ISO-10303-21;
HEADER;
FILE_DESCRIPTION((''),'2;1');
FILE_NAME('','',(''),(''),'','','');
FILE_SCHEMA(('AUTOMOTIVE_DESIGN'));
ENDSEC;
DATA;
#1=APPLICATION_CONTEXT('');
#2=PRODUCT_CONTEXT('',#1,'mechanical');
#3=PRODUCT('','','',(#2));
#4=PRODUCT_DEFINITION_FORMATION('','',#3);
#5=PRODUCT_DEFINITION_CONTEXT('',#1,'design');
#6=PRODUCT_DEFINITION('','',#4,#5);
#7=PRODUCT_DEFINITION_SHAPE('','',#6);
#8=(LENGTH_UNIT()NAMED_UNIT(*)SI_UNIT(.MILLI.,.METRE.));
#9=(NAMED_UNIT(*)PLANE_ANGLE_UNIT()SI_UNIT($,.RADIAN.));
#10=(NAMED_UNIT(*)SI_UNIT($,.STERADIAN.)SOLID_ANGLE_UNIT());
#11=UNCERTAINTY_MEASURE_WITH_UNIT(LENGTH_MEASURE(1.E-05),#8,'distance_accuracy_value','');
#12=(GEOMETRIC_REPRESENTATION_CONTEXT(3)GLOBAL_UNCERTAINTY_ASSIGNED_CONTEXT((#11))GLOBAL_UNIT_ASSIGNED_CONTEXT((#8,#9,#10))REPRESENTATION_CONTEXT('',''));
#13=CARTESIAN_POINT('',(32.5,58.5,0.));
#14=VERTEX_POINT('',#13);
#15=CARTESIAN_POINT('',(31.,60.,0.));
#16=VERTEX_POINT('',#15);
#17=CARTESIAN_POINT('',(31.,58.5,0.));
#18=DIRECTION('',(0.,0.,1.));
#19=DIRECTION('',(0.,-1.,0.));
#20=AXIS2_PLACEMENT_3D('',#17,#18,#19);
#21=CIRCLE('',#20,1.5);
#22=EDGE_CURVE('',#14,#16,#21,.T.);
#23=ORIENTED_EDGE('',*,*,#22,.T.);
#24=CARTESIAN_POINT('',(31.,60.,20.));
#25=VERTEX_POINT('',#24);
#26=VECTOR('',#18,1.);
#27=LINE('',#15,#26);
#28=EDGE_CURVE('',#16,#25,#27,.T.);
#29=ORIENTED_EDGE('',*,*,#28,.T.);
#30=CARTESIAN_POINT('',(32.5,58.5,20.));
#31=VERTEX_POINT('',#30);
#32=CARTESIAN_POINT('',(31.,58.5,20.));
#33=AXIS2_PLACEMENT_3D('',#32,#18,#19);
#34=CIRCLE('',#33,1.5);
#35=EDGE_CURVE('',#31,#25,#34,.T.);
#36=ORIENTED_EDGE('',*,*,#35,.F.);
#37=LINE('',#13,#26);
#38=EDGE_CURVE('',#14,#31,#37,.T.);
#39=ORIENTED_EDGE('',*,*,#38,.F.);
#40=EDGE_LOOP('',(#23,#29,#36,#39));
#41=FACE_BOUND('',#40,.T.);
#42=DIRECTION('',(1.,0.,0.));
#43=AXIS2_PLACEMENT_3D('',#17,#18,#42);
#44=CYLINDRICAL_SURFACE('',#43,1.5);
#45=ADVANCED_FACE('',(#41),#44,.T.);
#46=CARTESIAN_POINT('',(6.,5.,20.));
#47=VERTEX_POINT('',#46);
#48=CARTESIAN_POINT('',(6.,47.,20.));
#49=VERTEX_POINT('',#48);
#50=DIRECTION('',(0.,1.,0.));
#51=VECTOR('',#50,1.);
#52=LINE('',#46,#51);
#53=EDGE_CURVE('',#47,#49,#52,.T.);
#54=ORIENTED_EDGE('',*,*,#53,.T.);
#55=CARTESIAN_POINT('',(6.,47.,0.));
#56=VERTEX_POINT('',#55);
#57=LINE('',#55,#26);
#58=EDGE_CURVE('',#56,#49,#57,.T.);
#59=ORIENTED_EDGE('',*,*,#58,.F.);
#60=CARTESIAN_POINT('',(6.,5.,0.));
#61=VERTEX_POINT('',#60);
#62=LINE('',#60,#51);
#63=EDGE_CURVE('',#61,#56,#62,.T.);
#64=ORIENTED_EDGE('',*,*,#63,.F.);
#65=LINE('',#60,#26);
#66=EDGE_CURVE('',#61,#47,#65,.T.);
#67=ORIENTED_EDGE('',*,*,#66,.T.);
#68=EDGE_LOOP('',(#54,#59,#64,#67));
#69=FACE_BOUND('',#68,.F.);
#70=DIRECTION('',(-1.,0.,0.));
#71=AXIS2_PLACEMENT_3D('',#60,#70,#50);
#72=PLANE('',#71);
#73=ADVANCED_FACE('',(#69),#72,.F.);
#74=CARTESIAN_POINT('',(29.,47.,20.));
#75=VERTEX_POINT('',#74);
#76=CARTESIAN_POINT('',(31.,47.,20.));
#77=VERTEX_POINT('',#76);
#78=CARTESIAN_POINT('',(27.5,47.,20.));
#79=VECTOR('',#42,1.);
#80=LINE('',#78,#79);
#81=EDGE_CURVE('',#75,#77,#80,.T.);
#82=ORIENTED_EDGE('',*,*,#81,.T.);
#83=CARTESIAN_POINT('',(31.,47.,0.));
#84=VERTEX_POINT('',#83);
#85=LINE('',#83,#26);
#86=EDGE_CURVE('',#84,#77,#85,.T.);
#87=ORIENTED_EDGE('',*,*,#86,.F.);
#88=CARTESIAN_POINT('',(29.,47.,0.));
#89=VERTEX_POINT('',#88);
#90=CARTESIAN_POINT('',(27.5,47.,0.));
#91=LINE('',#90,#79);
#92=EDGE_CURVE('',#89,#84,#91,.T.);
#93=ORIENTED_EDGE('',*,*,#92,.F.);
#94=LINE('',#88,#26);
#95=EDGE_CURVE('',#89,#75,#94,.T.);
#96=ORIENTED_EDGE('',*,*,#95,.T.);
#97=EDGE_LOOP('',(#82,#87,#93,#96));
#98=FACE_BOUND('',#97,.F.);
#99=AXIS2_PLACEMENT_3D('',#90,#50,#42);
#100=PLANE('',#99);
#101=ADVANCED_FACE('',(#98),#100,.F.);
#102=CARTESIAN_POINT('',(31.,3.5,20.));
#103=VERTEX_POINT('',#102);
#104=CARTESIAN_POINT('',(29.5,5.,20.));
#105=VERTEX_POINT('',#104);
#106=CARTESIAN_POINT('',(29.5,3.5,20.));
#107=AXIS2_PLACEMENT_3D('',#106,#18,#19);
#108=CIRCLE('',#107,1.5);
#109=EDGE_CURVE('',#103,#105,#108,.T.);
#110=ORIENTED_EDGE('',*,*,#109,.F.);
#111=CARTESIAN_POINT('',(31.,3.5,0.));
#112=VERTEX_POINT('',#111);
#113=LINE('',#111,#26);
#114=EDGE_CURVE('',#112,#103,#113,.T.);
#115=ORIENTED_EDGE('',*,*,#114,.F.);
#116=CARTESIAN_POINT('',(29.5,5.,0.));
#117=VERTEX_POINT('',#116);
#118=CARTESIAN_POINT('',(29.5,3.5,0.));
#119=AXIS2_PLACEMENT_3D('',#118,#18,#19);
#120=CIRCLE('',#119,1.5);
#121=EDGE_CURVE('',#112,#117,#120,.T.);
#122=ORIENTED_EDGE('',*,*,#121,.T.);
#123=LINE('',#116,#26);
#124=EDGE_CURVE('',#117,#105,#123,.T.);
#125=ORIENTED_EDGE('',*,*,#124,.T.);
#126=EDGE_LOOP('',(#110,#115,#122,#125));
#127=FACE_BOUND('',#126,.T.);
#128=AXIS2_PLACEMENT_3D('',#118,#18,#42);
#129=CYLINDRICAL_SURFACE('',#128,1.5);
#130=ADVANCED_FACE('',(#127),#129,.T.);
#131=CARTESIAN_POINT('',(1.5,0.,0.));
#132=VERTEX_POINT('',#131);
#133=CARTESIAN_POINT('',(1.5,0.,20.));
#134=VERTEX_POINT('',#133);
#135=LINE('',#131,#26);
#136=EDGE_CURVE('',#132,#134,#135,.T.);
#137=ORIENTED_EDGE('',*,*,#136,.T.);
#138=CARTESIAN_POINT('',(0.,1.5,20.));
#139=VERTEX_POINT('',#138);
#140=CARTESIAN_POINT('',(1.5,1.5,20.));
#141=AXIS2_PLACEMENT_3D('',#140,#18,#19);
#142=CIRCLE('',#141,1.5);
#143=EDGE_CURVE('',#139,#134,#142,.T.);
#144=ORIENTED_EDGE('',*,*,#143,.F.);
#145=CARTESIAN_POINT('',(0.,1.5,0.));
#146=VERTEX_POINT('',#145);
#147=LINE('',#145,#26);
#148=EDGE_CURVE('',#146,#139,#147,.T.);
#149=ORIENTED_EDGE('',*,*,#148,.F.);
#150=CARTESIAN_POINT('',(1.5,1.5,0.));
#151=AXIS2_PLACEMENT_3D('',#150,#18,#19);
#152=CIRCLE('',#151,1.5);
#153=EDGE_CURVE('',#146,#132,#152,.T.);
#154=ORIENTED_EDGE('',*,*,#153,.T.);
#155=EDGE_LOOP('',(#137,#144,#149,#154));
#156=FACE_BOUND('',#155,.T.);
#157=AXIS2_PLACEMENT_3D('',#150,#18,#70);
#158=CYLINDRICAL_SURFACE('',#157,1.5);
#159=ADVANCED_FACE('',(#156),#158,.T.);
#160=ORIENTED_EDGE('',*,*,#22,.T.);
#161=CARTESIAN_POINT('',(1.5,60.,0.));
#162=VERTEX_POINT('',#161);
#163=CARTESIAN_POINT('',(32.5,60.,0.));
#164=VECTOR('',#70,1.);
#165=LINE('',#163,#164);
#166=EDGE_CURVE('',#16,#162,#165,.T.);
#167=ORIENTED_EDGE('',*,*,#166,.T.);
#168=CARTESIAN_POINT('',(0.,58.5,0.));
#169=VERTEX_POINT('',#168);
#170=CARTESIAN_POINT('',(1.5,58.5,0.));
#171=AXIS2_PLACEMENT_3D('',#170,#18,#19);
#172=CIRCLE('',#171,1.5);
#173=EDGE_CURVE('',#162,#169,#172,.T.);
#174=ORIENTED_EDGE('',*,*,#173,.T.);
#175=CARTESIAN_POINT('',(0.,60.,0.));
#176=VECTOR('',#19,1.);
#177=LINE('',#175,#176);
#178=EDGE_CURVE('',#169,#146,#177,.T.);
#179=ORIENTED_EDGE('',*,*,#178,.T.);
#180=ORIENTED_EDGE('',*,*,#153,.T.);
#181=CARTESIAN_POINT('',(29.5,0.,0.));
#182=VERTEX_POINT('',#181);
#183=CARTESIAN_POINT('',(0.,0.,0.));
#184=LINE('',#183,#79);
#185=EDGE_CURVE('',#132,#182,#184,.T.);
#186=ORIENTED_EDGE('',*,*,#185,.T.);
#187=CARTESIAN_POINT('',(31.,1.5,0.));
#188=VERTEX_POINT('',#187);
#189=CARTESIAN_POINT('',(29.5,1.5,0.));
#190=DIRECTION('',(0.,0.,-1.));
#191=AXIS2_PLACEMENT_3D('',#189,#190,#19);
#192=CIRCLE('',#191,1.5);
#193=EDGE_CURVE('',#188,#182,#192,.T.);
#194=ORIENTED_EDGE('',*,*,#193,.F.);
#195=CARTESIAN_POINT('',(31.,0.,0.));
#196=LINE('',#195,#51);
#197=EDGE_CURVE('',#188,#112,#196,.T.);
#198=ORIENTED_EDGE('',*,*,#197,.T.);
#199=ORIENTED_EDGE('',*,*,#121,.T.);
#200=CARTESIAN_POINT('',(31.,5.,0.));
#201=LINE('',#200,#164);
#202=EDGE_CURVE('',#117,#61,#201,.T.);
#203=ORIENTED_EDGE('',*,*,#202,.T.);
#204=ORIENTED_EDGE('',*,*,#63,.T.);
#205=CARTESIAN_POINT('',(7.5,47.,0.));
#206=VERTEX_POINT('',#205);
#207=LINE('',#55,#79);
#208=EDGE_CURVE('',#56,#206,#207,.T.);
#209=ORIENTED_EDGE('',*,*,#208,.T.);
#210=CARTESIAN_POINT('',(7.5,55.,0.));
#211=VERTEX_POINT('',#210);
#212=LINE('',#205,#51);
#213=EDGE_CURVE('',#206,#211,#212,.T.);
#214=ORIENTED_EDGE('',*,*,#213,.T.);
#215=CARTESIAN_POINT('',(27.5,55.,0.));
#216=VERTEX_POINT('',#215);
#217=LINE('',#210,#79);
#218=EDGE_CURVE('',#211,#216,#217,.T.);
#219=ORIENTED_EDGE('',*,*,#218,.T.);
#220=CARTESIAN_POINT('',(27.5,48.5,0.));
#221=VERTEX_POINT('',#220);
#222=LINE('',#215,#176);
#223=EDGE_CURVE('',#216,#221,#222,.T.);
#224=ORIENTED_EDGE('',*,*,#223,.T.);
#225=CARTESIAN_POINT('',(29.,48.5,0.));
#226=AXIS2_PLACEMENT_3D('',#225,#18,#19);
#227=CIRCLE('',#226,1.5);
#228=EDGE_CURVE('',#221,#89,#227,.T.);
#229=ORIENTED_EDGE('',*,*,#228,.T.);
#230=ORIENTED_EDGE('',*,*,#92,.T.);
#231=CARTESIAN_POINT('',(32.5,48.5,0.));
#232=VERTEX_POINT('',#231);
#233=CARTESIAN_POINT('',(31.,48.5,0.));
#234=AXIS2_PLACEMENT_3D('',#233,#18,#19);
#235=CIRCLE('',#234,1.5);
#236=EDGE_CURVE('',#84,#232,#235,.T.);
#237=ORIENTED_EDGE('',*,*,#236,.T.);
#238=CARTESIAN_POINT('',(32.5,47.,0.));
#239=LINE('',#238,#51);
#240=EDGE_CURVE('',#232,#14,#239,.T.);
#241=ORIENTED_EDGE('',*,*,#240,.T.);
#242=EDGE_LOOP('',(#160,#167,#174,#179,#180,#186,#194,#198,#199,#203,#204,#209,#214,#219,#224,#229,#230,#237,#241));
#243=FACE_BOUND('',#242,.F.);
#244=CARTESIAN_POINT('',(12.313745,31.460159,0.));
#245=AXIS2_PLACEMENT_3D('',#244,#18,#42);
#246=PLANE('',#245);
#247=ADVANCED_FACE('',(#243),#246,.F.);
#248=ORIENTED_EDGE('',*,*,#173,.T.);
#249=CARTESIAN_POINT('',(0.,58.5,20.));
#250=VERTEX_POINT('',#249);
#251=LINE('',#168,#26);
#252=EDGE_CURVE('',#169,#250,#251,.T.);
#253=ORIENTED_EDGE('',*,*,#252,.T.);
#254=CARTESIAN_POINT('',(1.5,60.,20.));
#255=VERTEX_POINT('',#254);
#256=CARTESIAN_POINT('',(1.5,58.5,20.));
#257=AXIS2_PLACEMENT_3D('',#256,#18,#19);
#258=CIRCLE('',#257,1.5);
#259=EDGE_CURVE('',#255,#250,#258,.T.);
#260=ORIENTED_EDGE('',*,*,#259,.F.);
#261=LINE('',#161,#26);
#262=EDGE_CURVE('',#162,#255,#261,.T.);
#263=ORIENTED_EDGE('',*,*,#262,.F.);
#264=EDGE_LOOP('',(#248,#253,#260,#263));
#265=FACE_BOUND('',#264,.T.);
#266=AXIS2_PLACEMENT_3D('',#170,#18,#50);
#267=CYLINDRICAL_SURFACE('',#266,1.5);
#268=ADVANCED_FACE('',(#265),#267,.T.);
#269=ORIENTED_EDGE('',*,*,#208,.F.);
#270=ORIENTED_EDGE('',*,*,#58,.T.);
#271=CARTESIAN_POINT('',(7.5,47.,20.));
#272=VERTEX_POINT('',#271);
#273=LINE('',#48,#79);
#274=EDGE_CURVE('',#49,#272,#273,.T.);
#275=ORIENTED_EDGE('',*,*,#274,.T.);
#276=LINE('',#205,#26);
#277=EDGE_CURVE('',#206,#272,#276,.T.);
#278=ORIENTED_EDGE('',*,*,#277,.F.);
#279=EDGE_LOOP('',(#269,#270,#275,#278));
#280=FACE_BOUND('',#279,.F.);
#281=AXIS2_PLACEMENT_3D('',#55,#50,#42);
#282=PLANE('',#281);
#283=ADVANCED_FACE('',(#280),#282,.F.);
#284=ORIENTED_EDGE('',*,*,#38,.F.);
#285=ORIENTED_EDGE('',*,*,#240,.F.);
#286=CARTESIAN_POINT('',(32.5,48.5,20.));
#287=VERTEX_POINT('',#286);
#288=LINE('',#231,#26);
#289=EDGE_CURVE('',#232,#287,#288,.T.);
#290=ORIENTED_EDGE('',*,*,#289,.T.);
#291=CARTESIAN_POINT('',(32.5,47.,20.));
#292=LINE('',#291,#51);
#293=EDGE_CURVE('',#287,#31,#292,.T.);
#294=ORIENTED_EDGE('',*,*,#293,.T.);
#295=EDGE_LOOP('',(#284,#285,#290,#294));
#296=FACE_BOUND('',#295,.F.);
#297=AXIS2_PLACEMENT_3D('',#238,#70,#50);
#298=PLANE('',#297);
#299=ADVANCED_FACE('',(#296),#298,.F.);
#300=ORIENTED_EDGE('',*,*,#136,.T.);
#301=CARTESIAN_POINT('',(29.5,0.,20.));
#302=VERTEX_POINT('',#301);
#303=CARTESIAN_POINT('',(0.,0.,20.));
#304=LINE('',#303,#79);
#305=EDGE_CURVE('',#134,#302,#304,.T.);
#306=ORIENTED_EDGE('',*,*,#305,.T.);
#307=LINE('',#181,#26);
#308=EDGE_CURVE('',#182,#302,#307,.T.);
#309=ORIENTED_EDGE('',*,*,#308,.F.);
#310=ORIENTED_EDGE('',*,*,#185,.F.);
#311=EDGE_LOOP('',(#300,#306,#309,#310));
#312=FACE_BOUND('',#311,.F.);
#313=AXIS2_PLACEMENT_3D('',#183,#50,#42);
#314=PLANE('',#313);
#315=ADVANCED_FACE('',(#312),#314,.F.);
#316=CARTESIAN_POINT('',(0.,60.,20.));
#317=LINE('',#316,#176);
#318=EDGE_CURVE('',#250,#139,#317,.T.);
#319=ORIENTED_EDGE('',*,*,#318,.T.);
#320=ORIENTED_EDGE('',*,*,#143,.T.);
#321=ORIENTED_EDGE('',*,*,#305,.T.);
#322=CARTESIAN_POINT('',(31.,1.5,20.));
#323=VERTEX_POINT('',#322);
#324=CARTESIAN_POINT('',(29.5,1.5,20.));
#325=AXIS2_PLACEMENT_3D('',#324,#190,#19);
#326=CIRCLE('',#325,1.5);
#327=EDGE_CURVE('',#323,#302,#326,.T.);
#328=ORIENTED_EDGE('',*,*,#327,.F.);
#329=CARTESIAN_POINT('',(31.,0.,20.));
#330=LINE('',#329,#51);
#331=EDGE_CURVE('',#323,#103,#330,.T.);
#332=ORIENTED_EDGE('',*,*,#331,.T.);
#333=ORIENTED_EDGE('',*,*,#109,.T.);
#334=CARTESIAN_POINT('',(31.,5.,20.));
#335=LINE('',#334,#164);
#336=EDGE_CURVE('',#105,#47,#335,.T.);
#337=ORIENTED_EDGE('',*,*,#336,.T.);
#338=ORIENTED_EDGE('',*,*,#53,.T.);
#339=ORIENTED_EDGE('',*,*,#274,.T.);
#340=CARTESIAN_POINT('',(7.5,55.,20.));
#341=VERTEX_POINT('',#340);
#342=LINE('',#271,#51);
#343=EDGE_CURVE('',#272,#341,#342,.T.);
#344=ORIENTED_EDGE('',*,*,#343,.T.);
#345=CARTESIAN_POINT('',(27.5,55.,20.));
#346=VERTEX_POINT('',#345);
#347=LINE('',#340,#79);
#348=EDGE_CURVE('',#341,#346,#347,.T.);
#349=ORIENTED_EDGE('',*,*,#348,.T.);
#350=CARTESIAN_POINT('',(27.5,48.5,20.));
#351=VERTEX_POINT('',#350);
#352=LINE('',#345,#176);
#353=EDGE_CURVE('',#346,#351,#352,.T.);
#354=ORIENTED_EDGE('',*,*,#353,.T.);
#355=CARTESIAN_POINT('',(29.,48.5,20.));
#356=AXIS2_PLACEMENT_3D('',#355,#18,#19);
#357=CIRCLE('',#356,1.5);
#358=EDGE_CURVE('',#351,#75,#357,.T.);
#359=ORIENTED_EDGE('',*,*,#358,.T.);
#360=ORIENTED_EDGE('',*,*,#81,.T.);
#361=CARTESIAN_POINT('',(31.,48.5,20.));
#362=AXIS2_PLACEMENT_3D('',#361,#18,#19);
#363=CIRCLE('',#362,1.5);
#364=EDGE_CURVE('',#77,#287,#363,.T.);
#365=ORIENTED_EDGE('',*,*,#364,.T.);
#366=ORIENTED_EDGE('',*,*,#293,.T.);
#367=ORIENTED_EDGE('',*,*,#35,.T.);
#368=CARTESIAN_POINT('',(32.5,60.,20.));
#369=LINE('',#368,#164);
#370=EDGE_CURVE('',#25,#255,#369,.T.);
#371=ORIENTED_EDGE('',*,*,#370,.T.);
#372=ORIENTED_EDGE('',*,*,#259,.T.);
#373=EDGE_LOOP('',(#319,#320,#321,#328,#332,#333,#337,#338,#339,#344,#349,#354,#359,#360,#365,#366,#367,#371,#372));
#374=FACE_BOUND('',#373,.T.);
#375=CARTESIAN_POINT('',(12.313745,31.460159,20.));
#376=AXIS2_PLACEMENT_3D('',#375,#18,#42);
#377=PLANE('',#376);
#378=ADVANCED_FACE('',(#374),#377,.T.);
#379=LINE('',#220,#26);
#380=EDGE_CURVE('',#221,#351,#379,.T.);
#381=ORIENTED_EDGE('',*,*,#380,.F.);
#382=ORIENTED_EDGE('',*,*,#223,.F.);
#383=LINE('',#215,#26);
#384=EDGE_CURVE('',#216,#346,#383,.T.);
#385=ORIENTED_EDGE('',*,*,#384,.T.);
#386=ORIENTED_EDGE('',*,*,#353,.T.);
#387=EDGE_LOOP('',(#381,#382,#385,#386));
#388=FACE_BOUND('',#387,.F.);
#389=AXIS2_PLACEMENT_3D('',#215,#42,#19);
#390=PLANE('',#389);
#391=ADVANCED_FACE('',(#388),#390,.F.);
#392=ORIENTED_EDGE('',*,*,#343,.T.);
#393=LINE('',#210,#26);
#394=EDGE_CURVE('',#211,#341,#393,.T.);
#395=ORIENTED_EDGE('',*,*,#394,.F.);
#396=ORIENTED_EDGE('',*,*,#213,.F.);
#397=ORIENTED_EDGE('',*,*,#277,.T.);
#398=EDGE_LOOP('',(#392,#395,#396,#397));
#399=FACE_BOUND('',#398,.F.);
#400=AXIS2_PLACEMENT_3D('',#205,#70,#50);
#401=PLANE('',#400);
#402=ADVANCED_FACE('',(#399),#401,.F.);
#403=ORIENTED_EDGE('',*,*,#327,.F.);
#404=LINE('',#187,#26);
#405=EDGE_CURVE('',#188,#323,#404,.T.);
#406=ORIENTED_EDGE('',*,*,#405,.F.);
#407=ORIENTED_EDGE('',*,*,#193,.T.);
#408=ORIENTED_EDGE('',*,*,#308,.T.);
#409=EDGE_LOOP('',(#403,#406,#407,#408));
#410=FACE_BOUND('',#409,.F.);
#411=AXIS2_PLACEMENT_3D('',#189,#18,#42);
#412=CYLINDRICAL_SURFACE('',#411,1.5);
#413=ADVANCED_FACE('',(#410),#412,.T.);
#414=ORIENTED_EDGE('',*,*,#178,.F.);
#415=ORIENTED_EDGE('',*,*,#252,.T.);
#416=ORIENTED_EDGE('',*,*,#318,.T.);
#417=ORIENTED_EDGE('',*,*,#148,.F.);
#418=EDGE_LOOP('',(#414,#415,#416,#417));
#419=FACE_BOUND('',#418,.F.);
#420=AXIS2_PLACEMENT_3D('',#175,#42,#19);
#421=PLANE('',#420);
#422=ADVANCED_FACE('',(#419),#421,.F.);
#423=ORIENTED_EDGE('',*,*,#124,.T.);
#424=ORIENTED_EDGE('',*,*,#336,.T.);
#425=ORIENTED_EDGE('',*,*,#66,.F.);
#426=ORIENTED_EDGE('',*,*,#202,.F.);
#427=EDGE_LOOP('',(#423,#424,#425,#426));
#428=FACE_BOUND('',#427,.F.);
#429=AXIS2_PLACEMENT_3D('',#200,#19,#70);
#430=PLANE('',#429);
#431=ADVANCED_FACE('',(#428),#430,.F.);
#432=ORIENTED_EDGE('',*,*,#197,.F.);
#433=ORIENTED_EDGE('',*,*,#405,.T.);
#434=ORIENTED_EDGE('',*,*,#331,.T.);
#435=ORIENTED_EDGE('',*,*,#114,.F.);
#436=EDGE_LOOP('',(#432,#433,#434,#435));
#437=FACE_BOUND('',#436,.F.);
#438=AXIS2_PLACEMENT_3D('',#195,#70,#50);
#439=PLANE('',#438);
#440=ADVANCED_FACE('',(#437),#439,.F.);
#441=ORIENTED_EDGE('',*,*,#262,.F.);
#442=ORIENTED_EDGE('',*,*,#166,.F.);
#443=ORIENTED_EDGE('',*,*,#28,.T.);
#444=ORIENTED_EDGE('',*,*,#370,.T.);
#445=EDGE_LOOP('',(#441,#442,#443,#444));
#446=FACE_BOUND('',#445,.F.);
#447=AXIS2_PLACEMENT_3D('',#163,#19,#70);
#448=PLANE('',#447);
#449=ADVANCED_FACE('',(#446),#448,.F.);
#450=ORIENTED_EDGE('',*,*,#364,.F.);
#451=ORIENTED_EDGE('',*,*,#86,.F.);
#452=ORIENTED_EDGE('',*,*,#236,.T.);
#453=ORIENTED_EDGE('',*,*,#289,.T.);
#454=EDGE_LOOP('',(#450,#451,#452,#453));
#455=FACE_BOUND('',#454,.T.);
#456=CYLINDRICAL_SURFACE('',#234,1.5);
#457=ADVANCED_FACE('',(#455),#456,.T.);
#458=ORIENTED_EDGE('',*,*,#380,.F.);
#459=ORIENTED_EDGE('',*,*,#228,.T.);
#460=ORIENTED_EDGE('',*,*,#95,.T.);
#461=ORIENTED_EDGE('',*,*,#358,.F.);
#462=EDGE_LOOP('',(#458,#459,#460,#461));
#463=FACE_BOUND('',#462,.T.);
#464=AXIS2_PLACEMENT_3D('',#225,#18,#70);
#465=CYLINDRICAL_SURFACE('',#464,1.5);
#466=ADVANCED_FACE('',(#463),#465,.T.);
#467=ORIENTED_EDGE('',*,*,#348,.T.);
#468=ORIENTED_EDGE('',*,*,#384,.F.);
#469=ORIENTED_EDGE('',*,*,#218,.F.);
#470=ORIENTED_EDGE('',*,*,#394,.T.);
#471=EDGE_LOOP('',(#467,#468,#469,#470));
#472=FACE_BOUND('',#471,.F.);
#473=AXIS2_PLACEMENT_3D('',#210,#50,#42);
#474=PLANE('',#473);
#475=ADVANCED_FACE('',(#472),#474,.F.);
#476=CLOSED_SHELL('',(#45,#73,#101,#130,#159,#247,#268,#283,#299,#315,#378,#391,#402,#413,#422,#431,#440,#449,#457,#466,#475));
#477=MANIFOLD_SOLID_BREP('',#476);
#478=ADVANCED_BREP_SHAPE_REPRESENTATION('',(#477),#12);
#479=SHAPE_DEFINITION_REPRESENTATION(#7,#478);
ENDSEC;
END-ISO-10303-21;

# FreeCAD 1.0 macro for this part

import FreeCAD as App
import Part
import Sketcher
from FreeCAD import Vector
Q = App.Units.Quantity


def edges_at(feature, points):
    """Names of the edges that pass closest to the given points."""
    edges = feature.Shape.Edges
    near = lambda p: min(range(len(edges)), key=lambda i: edges[i].distToShape(Part.Vertex(*p))[0])
    return sorted({f"Edge{near(p) + 1}" for p in points})

doc = App.newDocument("Part")
body = doc.addObject("PartDesign::Body", "Body")

# Sketch on XY plane
sketch1 = body.newObject("Sketcher::SketchObject", "Sketch")
sketch1.AttachmentSupport = (doc.getObject("XY_Plane"), [""])
sketch1.MapMode = "FlatFace"
sketch1.addGeometry(Part.LineSegment(Vector(31, 0, 0), Vector(31, 5, 0)), False)
sketch1.addGeometry(Part.LineSegment(Vector(31, 5, 0), Vector(6, 5, 0)), False)
sketch1.addGeometry(Part.LineSegment(Vector(6, 5, 0), Vector(6, 47, 0)), False)
sketch1.addGeometry(Part.LineSegment(Vector(6, 47, 0), Vector(7.5, 47, 0)), False)
sketch1.addGeometry(Part.LineSegment(Vector(7.5, 47, 0), Vector(7.5, 55, 0)), False)
sketch1.addGeometry(Part.LineSegment(Vector(7.5, 55, 0), Vector(27.5, 55, 0)), False)
sketch1.addGeometry(Part.LineSegment(Vector(27.5, 55, 0), Vector(27.5, 47, 0)), False)
sketch1.addGeometry(Part.LineSegment(Vector(27.5, 47, 0), Vector(32.5, 47, 0)), False)
sketch1.addGeometry(Part.LineSegment(Vector(32.5, 47, 0), Vector(32.5, 60, 0)), False)
sketch1.addGeometry(Part.LineSegment(Vector(32.5, 60, 0), Vector(0, 60, 0)), False)
sketch1.addGeometry(Part.LineSegment(Vector(0, 60, 0), Vector(0, 0, 0)), False)
sketch1.addGeometry(Part.LineSegment(Vector(0, 0, 0), Vector(31, 0, 0)), False)
sketch1.addConstraint(Sketcher.Constraint("Coincident", 0, 2, 1, 1))
sketch1.addConstraint(Sketcher.Constraint("Coincident", 1, 2, 2, 1))
sketch1.addConstraint(Sketcher.Constraint("Coincident", 2, 2, 3, 1))
sketch1.addConstraint(Sketcher.Constraint("Coincident", 3, 2, 4, 1))
sketch1.addConstraint(Sketcher.Constraint("Coincident", 4, 2, 5, 1))
sketch1.addConstraint(Sketcher.Constraint("Coincident", 5, 2, 6, 1))
sketch1.addConstraint(Sketcher.Constraint("Coincident", 6, 2, 7, 1))
sketch1.addConstraint(Sketcher.Constraint("Coincident", 7, 2, 8, 1))
sketch1.addConstraint(Sketcher.Constraint("Coincident", 8, 2, 9, 1))
sketch1.addConstraint(Sketcher.Constraint("Coincident", 9, 2, 10, 1))
sketch1.addConstraint(Sketcher.Constraint("Coincident", 10, 2, 11, 1))
sketch1.addConstraint(Sketcher.Constraint("Coincident", 11, 2, 0, 1))
sketch1.addConstraint(Sketcher.Constraint("Vertical", 0))
sketch1.addConstraint(Sketcher.Constraint("Horizontal", 1))
sketch1.addConstraint(Sketcher.Constraint("Vertical", 2))
sketch1.addConstraint(Sketcher.Constraint("Horizontal", 3))
sketch1.addConstraint(Sketcher.Constraint("Vertical", 4))
sketch1.addConstraint(Sketcher.Constraint("Horizontal", 5))
sketch1.addConstraint(Sketcher.Constraint("Vertical", 6))
sketch1.addConstraint(Sketcher.Constraint("Horizontal", 7))
sketch1.addConstraint(Sketcher.Constraint("Vertical", 8))
sketch1.addConstraint(Sketcher.Constraint("Horizontal", 9))
sketch1.addConstraint(Sketcher.Constraint("Vertical", 10))
sketch1.addConstraint(Sketcher.Constraint("Horizontal", 11))
sketch1.addConstraint(Sketcher.Constraint("Coincident", 10, 2, -1, 1))
sketch1.addConstraint(Sketcher.Constraint("Horizontal", 3, 2, 6, 2))
sketch1.addConstraint(Sketcher.Constraint("Equal", 7, 0))
sketch1.addConstraint(Sketcher.Constraint("DistanceX", 1, 2, 1, 1, Q("25 mm")))
sketch1.addConstraint(Sketcher.Constraint("DistanceX", 5, 1, 5, 2, Q("20 mm")))
sketch1.addConstraint(Sketcher.Constraint("DistanceX", 7, 1, 7, 2, Q("5 mm")))
sketch1.addConstraint(Sketcher.Constraint("DistanceX", 11, 1, 11, 2, Q("31 mm")))
sketch1.addConstraint(Sketcher.Constraint("DistanceY", 2, 1, 2, 2, Q("42 mm")))
sketch1.addConstraint(Sketcher.Constraint("DistanceY", 4, 1, 4, 2, Q("8 mm")))
sketch1.addConstraint(Sketcher.Constraint("DistanceY", 8, 1, 8, 2, Q("13 mm")))
sketch1.addConstraint(Sketcher.Constraint("DistanceX", 3, 1, 3, 2, Q("1.5 mm")))
pad1 = body.newObject("PartDesign::Pad", "Pad")
pad1.Profile = sketch1
pad1.Length = 20
doc.recompute()

fillet = body.newObject("PartDesign::Fillet", "Fillet")
fillet.Base = (pad1, edges_at(pad1, [
    (0, 60, 10),
    (0, 0, 10),
    (31, 0, 10),
    (31, 5, 10),
    (27.5, 47, 10),
    (32.5, 47, 10),
    (32.5, 60, 10),
]))
fillet.Radius = 1.5

doc.recompute()
